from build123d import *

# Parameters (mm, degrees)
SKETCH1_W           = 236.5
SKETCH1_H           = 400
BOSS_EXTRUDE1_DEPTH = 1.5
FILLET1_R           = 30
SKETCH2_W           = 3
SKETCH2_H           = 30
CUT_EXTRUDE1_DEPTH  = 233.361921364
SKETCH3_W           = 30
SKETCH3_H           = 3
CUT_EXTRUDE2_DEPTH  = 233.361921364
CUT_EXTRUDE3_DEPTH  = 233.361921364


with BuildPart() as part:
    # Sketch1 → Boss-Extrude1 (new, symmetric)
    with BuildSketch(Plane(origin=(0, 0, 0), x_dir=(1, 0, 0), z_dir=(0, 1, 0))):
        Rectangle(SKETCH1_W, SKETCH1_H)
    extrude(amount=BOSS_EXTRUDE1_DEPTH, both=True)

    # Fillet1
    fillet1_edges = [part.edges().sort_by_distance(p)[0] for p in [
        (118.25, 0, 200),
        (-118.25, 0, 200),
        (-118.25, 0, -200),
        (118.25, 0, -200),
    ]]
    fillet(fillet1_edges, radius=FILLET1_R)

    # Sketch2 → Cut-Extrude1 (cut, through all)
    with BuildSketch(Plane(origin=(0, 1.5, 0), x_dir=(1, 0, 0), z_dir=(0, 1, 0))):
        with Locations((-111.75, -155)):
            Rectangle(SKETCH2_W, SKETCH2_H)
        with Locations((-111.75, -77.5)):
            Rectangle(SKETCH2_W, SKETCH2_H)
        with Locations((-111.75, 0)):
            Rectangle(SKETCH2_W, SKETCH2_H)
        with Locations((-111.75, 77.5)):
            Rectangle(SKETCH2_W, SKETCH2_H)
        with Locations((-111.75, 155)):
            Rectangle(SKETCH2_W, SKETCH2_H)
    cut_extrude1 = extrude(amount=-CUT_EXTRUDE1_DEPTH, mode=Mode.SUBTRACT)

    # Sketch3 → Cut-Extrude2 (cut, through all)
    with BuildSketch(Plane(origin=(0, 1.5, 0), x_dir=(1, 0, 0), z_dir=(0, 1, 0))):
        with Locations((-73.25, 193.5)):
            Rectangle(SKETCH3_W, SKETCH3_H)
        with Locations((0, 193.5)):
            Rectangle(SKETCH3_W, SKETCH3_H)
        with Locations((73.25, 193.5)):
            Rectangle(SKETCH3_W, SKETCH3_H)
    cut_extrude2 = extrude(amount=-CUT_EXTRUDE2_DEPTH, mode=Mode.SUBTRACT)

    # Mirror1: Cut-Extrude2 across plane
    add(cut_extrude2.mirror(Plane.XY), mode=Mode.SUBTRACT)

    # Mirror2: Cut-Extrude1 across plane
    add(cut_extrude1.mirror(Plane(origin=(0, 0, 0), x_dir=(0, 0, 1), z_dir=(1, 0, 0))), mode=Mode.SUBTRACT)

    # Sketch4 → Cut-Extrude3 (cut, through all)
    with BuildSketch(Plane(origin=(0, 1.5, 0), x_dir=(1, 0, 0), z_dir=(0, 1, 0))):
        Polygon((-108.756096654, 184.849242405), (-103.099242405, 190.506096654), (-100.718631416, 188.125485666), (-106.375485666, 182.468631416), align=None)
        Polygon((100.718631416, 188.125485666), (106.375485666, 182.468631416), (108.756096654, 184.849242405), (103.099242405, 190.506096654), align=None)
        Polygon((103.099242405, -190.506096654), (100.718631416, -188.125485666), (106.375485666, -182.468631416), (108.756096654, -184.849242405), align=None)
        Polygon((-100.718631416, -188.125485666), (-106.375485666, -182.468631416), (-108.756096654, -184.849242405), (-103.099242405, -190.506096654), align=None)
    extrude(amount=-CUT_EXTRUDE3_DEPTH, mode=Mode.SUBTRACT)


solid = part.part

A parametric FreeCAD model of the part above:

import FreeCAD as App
import Part
import Sketcher
from FreeCAD import Vector


def edges_at(feature, points):
    """Names of the edges that pass closest to the given points."""
    edges = feature.Shape.Edges
    near = lambda p: min(range(len(edges)), key=lambda i: edges[i].distToShape(Part.Vertex(*p))[0])
    return sorted({f"Edge{near(p) + 1}" for p in points})


def add_polygon(sketch, points):
    """Adds a closed chain of lines whose ends are joined by coincident constraints."""
    first, n = sketch.GeometryCount, len(points)
    for a, b in zip(points, points[1:] + points[:1]):
        sketch.addGeometry(Part.LineSegment(App.Vector(*a, 0), App.Vector(*b, 0)), False)
    for i in range(n):
        sketch.addConstraint(Sketcher.Constraint("Coincident", first + i, 2, first + (i + 1) % n, 1))

doc = App.newDocument("Part")
params = doc.addObject("Spreadsheet::Sheet", "Params")
for row, (alias, value) in enumerate([
    ("sketch1_height", "400 mm"),
    ("sketch1_width", "236.5 mm"),
    ("pad1_length", "3 mm"),
    ("fillet_radius", "30 mm"),
    ("sketch2_width", "3 mm"),
    ("sketch2_height", "30 mm"),
    ("sketch3_width", "30 mm"),
    ("sketch3_height", "3 mm"),
    ("sketch4_length", "8 mm"),
], start=1):
    params.set(f"A{row}", alias)
    params.set(f"B{row}", "=" + value)
    params.setAlias(f"B{row}", alias)

body = doc.addObject("PartDesign::Body", "Body")

# Sketch on XZ plane
sketch1 = body.newObject("Sketcher::SketchObject", "Sketch")
sketch1.AttachmentSupport = (doc.getObject("XZ_Plane"), [""])
sketch1.MapMode = "FlatFace"
add_polygon(sketch1, [(-118, -200), (-118, 200), (118, 200), (118, -200)])  # lines 0-3
sketch1.addConstraint([
    Sketcher.Constraint("Vertical", 0),
    Sketcher.Constraint("Horizontal", 1),
    Sketcher.Constraint("Vertical", 2),
    Sketcher.Constraint("Horizontal", 3),
    Sketcher.Constraint("Symmetric", 0, 2, 2, 2, -1, 1),
    Sketcher.Constraint("DistanceY", 0, 1, 0, 2, 400.0),
    Sketcher.Constraint("DistanceX", 1, 1, 1, 2, 236.5),
])
sketch1.setExpression("Constraints[9]", "Params.sketch1_height")
sketch1.setExpression("Constraints[10]", "Params.sketch1_width")
pad1 = body.newObject("PartDesign::Pad", "Pad")
pad1.Profile = sketch1
pad1.setExpression("Length", "Params.pad1_length")
pad1.Midplane = True
doc.recompute()

fillet = body.newObject("PartDesign::Fillet", "Fillet")
fillet.Base = (pad1, edges_at(pad1, [
    (118.25, 0, 200),
    (-118.25, 0, 200),
    (-118.25, 0, -200),
    (118.25, 0, -200),
]))
fillet.setExpression("Radius", "Params.fillet_radius")

# Sketch on XZ plane
sketch2 = body.newObject("Sketcher::SketchObject", "Sketch001")
sketch2.AttachmentSupport = (doc.getObject("XZ_Plane"), [""])
sketch2.MapMode = "FlatFace"
sketch2.AttachmentOffset = App.Placement(Vector(0, 0, -1.5), App.Rotation())
add_polygon(sketch2, [(-113.2, 140), (-113.2, 170), (-110.2, 170), (-110.2, 140)])  # lines 0-3
add_polygon(sketch2, [(-113.2, 62.5), (-113.2, 92.5), (-110.2, 92.5), (-110.2, 62.5)])  # lines 4-7
add_polygon(sketch2, [(-113.2, -15), (-113.2, 15), (-110.2, 15), (-110.2, -15)])  # lines 8-11
add_polygon(sketch2, [(-113.2, -92.5), (-113.2, -62.5), (-110.2, -62.5), (-110.2, -92.5)])  # lines 12-15
add_polygon(sketch2, [(-113.2, -170), (-113.2, -140), (-110.2, -140), (-110.2, -170)])  # lines 16-19
sketch2.addConstraint([
    Sketcher.Constraint("Vertical", 0),
    Sketcher.Constraint("Horizontal", 1),
    Sketcher.Constraint("Vertical", 2),
    Sketcher.Constraint("Horizontal", 3),
    Sketcher.Constraint("Vertical", 4),
    Sketcher.Constraint("Horizontal", 5),
    Sketcher.Constraint("Vertical", 6),
    Sketcher.Constraint("Horizontal", 7),
    Sketcher.Constraint("Vertical", 8),
    Sketcher.Constraint("Horizontal", 9),
    Sketcher.Constraint("Vertical", 10),
    Sketcher.Constraint("Horizontal", 11),
    Sketcher.Constraint("Vertical", 12),
    Sketcher.Constraint("Horizontal", 13),
    Sketcher.Constraint("Vertical", 14),
    Sketcher.Constraint("Horizontal", 15),
    Sketcher.Constraint("Vertical", 16),
    Sketcher.Constraint("Horizontal", 17),
    Sketcher.Constraint("Vertical", 18),
    Sketcher.Constraint("Horizontal", 19),
    Sketcher.Constraint("Symmetric", 7, 2, 12, 2, -1),
    Sketcher.Constraint("Symmetric", 5, 2, 14, 2, -1),
    Sketcher.Constraint("Symmetric", 3, 2, 16, 2, -1),
    Sketcher.Constraint("Symmetric", 1, 2, 18, 2, -1),
    Sketcher.Constraint("Vertical", 3, 2, 4, 2),
    Sketcher.Constraint("Vertical", 2, 2, 5, 2),
    Sketcher.Constraint("Vertical", 7, 2, 8, 2),
    Sketcher.Constraint("Vertical", 6, 2, 9, 2),
    Sketcher.Constraint("Equal", 2, 4),
    Sketcher.Constraint("Equal", 6, 8),
    Sketcher.Constraint("DistanceX", 1, 1, 1, 2, 3.0),
    Sketcher.Constraint("DistanceY", 0, 1, 0, 2, 30.0),
    Sketcher.Constraint("DistanceY", -1, 1, 0, 2, 170.0),
    Sketcher.Constraint("DistanceY", -1, 1, 8, 2, 15.0),
    Sketcher.Constraint("DistanceY", 12, 2, 7, 2, 125.0),
    Sketcher.Constraint("DistanceX", 0, 2, -1, 1, 113.25),
])
sketch2.setExpression("Constraints[50]", "Params.sketch2_width")
sketch2.setExpression("Constraints[51]", "Params.sketch2_height")
pocket1 = body.newObject("PartDesign::Pocket", "Pocket")
pocket1.Profile = sketch2
pocket1.Type = "ThroughAll"
pocket1.Reversed = True

# Sketch on XZ plane
sketch3 = body.newObject("Sketcher::SketchObject", "Sketch002")
sketch3.AttachmentSupport = (doc.getObject("XZ_Plane"), [""])
sketch3.MapMode = "FlatFace"
sketch3.AttachmentOffset = App.Placement(Vector(0, 0, -1.5), App.Rotation())
add_polygon(sketch3, [(-88.2, -195), (-88.2, -192), (-58.2, -192), (-58.2, -195)])  # lines 0-3
add_polygon(sketch3, [(-15, -195), (-15, -192), (15, -192), (15, -195)])  # lines 4-7
add_polygon(sketch3, [(58.2, -195), (58.2, -192), (88.2, -192), (88.2, -195)])  # lines 8-11
sketch3.addConstraint([
    Sketcher.Constraint("Vertical", 0),
    Sketcher.Constraint("Horizontal", 1),
    Sketcher.Constraint("Vertical", 2),
    Sketcher.Constraint("Horizontal", 3),
    Sketcher.Constraint("Vertical", 4),
    Sketcher.Constraint("Horizontal", 5),
    Sketcher.Constraint("Vertical", 6),
    Sketcher.Constraint("Horizontal", 7),
    Sketcher.Constraint("Vertical", 8),
    Sketcher.Constraint("Horizontal", 9),
    Sketcher.Constraint("Vertical", 10),
    Sketcher.Constraint("Horizontal", 11),
    Sketcher.Constraint("Symmetric", 1, 2, 8, 2, -2),
    Sketcher.Constraint("Symmetric", 3, 2, 10, 2, -2),
    Sketcher.Constraint("Horizontal", 1, 2, 4, 2),
    Sketcher.Constraint("Horizontal", 3, 2, 6, 2),
    Sketcher.Constraint("Equal", 3, 5),
    Sketcher.Constraint("DistanceX", 1, 1, 1, 2, 30.0),
    Sketcher.Constraint("DistanceY", 0, 1, 0, 2, 3.0),
    Sketcher.Constraint("DistanceY", 0, 2, -1, 1, 192.0),
    Sketcher.Constraint("DistanceX", 4, 2, -1, 1, 15.0),
    Sketcher.Constraint("DistanceX", 1, 2, 8, 2, 116.5),
])
sketch3.setExpression("Constraints[29]", "Params.sketch3_width")
sketch3.setExpression("Constraints[30]", "Params.sketch3_height")
pocket2 = body.newObject("PartDesign::Pocket", "Pocket001")
pocket2.Profile = sketch3
pocket2.Type = "ThroughAll"
pocket2.Reversed = True
doc.recompute()

mirrored = body.newObject("PartDesign::Mirrored", "Mirrored")
mirrored.Originals = [pocket2]
mirrored.MirrorPlane = (doc.getObject("XY_Plane"), [""])
body.Tip = mirrored
doc.recompute()

mirrored2 = body.newObject("PartDesign::Mirrored", "Mirrored001")
mirrored2.Originals = [pocket1]
mirrored2.MirrorPlane = (doc.getObject("YZ_Plane"), [""])
body.Tip = mirrored2

# Sketch on XZ plane
sketch4 = body.newObject("Sketcher::SketchObject", "Sketch003")
sketch4.AttachmentSupport = (doc.getObject("XZ_Plane"), [""])
sketch4.MapMode = "FlatFace"
sketch4.AttachmentOffset = App.Placement(Vector(0, 0, -1.5), App.Rotation())
add_polygon(sketch4, [(-103.1, -190.5), (-108.8, -184.8), (-106.4, -182.5), (-100.7, -188.1)])  # lines 0-3
add_polygon(sketch4, [(100.7, -188.1), (106.4, -182.5), (108.8, -184.8), (103.1, -190.5)])  # lines 4-7
add_polygon(sketch4, [(100.7, 188.1), (103.1, 190.5), (108.8, 184.8), (106.4, 182.5)])  # lines 8-11
add_polygon(sketch4, [(-100.7, 188.1), (-106.4, 182.5), (-108.8, 184.8), (-103.1, 190.5)])  # lines 12-15
sketch4.addConstraint([
    Sketcher.Constraint("Symmetric", 3, 2, 8, 2, -1, 1),
    Sketcher.Constraint("Symmetric", 0, 2, 9, 2, -1, 1),
    Sketcher.Constraint("Symmetric", 1, 2, 10, 2, -1, 1),
    Sketcher.Constraint("Symmetric", 2, 2, 11, 2, -1, 1),
    Sketcher.Constraint("Symmetric", 4, 2, 12, 2, -1, 1),
    Sketcher.Constraint("Symmetric", 5, 2, 13, 2, -1, 1),
    Sketcher.Constraint("Symmetric", 6, 2, 14, 2, -1, 1),
    Sketcher.Constraint("Symmetric", 7, 2, 15, 2, -1, 1),
    Sketcher.Constraint("Symmetric", 1, 2, 4, 2, -2),
    Sketcher.Constraint("Symmetric", 0, 2, 5, 2, -2),
    Sketcher.Constraint("Symmetric", 3, 2, 6, 2, -2),
    Sketcher.Constraint("Symmetric", 2, 2, 7, 2, -2),
    Sketcher.Constraint("Perpendicular", 0, 1),
    Sketcher.Constraint("Perpendicular", 1, 2),
    Sketcher.Constraint("Perpendicular", 2, 3),
    Sketcher.Constraint("Parallel", 3, 4),
    Sketcher.Constraint("Distance", 0, 8.0),
    Sketcher.Constraint("DistanceY", 1, 2, -1, 1, 182.468631),
    Sketcher.Constraint("DistanceX", 2, 2, -1, 1, 100.718631),
    Sketcher.Constraint("DistanceX", 0, 2, 1, 2, 2.380611),
])
sketch4.setExpression("Constraints[32]", "Params.sketch4_length")
pocket3 = body.newObject("PartDesign::Pocket", "Pocket002")
pocket3.Profile = sketch4
pocket3.Type = "ThroughAll"
pocket3.Reversed = True

doc.recompute()
